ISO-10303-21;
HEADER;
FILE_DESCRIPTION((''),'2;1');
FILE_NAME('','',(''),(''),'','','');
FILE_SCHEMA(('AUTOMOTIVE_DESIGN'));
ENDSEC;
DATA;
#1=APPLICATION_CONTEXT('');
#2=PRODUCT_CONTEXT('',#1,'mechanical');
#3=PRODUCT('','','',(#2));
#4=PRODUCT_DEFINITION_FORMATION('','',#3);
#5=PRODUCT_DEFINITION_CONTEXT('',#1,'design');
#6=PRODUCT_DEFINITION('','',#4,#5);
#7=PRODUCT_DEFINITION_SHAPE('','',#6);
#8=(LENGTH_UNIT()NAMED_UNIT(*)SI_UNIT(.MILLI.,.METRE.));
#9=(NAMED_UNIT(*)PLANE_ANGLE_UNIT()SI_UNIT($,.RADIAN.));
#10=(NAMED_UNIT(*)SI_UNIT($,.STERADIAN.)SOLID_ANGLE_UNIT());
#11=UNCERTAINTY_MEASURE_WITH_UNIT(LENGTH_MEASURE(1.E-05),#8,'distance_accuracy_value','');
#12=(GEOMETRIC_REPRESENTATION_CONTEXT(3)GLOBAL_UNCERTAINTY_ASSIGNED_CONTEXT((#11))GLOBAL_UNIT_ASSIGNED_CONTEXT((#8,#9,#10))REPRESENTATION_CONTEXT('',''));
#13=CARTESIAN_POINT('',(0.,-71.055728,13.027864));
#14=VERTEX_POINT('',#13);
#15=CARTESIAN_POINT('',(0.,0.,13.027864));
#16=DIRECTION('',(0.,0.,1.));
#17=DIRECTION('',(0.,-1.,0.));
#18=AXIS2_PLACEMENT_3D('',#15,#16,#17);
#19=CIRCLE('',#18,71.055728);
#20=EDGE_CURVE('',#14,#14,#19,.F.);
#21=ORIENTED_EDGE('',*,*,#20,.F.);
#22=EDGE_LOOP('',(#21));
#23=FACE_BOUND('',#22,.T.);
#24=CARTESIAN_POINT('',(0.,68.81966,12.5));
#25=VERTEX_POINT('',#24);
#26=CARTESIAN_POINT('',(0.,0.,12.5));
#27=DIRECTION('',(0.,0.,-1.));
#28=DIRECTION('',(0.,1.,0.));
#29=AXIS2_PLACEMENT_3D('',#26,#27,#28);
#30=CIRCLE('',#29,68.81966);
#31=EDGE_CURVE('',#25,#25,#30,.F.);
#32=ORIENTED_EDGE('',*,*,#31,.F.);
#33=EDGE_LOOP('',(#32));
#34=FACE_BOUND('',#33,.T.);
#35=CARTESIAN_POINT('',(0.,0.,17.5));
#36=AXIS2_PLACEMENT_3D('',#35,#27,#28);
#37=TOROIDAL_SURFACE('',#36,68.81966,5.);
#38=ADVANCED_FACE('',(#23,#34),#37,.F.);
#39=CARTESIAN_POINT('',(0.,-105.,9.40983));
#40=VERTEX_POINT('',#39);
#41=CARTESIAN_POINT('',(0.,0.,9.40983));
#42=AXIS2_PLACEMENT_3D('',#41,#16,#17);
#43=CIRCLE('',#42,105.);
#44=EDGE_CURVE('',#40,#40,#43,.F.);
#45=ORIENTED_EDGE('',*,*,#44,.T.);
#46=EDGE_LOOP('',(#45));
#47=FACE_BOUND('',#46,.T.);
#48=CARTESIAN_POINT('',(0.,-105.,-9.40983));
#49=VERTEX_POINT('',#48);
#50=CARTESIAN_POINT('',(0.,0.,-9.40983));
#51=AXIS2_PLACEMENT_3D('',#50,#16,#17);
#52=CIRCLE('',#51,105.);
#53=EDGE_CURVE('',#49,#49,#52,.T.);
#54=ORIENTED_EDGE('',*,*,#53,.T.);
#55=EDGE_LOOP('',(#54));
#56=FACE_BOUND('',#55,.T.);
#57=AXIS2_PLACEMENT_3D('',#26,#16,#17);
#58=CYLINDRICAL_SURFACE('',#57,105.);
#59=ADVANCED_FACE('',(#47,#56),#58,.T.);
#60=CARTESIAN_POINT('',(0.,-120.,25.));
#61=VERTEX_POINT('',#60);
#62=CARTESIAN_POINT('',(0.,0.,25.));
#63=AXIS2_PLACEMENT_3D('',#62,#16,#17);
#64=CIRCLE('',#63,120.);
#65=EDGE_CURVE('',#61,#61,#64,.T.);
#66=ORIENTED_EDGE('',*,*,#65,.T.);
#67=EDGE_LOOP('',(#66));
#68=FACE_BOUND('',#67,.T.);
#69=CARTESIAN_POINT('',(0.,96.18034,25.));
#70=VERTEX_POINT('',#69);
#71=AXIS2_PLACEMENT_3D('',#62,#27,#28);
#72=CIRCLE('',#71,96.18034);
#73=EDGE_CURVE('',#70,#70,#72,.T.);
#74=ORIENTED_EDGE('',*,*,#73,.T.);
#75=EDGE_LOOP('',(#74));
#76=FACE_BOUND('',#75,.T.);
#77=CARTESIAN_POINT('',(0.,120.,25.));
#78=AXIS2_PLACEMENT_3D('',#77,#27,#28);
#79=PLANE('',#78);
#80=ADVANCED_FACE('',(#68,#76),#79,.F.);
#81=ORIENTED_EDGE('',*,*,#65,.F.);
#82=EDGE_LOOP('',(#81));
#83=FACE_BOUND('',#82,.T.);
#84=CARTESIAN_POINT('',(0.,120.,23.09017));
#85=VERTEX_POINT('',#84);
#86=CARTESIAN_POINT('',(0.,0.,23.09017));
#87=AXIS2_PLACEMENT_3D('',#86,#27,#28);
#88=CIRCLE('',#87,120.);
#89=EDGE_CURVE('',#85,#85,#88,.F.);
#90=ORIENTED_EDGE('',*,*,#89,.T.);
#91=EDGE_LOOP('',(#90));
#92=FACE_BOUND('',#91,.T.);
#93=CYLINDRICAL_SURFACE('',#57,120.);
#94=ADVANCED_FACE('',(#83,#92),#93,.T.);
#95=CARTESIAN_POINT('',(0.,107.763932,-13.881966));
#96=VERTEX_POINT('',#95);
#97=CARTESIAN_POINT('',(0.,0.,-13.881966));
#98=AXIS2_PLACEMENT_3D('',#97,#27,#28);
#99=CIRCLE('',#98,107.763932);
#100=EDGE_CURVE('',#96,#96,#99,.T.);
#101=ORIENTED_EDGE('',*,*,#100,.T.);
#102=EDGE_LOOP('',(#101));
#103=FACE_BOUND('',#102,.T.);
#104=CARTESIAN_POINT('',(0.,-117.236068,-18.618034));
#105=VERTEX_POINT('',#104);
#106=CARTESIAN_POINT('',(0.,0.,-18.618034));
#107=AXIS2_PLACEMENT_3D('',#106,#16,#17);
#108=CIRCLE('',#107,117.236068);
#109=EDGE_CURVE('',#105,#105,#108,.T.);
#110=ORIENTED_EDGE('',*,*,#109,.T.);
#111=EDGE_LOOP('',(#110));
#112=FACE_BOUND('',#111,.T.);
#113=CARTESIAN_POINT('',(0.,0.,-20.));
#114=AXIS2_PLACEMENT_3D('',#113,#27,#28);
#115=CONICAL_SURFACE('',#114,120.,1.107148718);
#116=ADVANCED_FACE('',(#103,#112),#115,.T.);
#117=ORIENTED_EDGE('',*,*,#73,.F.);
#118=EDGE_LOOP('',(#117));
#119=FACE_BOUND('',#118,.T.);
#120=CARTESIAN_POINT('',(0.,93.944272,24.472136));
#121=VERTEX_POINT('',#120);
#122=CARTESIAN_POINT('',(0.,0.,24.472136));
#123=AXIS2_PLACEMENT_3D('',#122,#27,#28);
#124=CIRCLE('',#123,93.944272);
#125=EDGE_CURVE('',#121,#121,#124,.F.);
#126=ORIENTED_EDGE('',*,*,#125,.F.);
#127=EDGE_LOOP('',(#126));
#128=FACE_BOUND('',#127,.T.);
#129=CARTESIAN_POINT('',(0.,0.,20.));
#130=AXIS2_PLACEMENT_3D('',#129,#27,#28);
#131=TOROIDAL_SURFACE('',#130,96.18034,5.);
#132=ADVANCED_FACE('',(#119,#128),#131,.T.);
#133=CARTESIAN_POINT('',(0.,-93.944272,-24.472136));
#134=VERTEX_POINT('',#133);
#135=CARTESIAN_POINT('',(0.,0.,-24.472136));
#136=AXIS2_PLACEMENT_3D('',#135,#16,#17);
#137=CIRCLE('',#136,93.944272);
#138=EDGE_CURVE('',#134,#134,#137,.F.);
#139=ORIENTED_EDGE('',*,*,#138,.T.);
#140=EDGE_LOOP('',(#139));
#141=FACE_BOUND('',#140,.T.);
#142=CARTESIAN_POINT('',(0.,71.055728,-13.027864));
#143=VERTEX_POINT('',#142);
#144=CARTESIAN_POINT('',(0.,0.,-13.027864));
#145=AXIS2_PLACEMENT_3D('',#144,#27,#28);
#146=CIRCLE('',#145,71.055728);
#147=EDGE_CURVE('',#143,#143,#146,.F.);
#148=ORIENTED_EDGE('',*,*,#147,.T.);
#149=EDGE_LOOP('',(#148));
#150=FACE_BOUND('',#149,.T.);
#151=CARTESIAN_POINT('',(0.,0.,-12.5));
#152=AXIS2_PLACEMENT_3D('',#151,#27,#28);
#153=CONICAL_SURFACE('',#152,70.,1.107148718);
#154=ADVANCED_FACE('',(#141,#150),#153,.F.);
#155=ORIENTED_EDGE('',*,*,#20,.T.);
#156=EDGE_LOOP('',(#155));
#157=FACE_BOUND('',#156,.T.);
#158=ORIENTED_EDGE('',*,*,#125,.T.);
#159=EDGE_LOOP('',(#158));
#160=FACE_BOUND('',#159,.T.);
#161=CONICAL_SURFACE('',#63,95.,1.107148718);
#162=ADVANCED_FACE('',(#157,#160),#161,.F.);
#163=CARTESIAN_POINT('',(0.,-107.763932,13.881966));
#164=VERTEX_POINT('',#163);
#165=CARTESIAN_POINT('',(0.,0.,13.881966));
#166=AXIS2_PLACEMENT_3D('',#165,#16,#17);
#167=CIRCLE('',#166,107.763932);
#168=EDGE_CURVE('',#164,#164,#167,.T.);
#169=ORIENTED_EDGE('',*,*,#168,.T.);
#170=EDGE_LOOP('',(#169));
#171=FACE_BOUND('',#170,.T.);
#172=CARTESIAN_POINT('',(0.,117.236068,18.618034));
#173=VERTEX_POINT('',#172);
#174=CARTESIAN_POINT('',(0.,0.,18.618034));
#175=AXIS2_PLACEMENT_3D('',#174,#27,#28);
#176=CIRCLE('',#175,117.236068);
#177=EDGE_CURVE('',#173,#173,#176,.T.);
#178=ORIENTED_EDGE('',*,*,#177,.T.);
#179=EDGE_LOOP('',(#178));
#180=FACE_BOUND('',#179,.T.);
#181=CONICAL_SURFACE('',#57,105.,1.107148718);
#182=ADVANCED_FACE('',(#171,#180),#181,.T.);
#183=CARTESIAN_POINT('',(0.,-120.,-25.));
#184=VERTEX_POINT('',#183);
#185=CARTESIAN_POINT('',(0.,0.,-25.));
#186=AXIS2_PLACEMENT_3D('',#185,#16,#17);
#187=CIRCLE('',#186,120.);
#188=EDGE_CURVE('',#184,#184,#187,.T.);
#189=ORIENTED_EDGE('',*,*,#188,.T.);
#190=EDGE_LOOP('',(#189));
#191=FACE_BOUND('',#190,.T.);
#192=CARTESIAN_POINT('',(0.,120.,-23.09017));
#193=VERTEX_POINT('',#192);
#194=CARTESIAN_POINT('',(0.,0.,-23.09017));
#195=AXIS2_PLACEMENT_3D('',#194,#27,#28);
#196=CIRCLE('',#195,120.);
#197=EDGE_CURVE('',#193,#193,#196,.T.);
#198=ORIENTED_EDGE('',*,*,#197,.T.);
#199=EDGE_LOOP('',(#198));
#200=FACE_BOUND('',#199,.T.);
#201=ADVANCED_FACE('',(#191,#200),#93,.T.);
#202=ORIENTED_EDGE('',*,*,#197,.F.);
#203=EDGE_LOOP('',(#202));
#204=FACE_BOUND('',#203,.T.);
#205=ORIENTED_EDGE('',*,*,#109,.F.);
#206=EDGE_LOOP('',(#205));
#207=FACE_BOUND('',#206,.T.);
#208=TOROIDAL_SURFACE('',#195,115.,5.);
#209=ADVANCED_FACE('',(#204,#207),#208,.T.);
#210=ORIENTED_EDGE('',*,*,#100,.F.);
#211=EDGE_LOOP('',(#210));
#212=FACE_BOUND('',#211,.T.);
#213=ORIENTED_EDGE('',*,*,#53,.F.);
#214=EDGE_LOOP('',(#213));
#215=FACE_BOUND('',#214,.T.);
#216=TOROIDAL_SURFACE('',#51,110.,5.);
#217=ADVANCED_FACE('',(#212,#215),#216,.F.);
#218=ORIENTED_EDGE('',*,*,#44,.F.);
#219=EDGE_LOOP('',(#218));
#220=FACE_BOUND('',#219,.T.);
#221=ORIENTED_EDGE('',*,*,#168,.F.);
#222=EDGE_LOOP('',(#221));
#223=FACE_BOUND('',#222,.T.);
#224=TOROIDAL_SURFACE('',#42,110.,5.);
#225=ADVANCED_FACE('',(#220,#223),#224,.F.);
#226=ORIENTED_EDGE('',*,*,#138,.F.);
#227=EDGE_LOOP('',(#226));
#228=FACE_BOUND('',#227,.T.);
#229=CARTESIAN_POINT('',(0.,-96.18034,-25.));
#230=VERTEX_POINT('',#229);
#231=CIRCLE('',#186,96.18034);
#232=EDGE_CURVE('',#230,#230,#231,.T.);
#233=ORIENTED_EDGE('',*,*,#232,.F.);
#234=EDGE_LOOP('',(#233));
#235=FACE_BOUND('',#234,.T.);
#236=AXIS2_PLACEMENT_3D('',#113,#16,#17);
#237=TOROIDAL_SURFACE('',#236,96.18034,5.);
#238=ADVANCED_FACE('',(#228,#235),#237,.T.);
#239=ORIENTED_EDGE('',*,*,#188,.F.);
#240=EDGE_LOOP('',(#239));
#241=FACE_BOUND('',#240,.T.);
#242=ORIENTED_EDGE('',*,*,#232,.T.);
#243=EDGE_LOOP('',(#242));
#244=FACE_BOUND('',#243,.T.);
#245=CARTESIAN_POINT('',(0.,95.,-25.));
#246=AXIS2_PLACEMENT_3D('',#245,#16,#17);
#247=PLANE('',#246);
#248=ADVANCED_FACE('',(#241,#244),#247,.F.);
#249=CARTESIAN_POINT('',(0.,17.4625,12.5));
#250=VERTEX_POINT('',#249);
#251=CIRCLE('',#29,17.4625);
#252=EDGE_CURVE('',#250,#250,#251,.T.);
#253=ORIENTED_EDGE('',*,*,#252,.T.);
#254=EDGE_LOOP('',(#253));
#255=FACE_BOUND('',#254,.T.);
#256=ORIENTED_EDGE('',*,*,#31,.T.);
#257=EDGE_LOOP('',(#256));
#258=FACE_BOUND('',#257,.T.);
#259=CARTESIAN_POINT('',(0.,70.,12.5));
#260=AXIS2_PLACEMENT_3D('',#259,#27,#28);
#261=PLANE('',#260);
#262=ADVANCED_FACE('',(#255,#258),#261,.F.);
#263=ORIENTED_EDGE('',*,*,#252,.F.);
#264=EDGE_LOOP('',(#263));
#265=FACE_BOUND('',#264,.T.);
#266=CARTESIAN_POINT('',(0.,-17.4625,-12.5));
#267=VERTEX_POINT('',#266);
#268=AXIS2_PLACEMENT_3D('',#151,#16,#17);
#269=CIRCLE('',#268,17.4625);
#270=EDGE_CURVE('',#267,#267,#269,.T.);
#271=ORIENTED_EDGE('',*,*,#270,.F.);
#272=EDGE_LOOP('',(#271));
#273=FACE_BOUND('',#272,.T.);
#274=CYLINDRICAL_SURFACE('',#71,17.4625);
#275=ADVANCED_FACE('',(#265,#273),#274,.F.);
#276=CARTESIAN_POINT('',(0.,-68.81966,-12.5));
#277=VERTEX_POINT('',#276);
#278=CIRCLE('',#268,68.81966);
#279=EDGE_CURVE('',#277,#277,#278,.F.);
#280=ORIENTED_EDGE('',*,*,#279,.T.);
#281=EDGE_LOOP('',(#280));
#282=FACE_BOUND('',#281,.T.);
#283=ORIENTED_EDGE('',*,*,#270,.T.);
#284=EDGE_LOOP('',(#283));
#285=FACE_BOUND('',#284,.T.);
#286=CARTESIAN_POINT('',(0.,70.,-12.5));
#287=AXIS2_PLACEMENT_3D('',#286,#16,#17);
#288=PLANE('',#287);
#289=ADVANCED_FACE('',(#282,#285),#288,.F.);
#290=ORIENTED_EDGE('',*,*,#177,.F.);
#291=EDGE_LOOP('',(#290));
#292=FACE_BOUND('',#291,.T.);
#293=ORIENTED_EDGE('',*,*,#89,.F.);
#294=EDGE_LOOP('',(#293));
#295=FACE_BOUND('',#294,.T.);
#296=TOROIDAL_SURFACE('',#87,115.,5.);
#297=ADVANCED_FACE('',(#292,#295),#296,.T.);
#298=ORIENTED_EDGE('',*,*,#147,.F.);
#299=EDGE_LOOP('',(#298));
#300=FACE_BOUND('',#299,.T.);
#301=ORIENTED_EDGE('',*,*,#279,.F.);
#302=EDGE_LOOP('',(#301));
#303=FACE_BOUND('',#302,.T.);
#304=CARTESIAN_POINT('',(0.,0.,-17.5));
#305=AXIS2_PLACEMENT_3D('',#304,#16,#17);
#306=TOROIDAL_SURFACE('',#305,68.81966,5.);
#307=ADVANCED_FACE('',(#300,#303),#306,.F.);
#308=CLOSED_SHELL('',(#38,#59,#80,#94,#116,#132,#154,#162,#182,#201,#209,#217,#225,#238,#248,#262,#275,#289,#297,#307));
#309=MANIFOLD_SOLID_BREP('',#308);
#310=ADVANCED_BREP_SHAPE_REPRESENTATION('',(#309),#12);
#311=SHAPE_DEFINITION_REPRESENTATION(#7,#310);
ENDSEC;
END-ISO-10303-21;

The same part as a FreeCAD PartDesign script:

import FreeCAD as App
import Part
import Sketcher
Q = App.Units.Quantity


def edges_at(feature, points):
    """Names of the edges that pass closest to the given points."""
    edges = feature.Shape.Edges
    near = lambda p: min(range(len(edges)), key=lambda i: edges[i].distToShape(Part.Vertex(*p))[0])
    return sorted({f"Edge{near(p) + 1}" for p in points})


def add_polygon(sketch, points):
    """Adds a closed chain of lines whose ends are joined by coincident constraints."""
    first, n = sketch.GeometryCount, len(points)
    for a, b in zip(points, points[1:] + points[:1]):
        sketch.addGeometry(Part.LineSegment(App.Vector(*a, 0), App.Vector(*b, 0)), False)
    for i in range(n):
        sketch.addConstraint(Sketcher.Constraint("Coincident", first + i, 2, first + (i + 1) % n, 1))

doc = App.newDocument("Part")
body = doc.addObject("PartDesign::Body", "Body")

sketch1 = body.newObject("Sketcher::SketchObject", "Sketch")
sketch1.AttachmentSupport = (doc.getObject("YZ_Plane"), [""])
sketch1.MapMode = "FlatFace"
add_polygon(sketch1, [(120, 25), (95, 25), (70, 12.5), (0, 12.5), (0, -12.5), (70, -12.5), (95, -25), (120, -25), (120, -20), (105, -12.5), (105, 12.5), (120, 20)])
sketch1.addConstraint([
    Sketcher.Constraint("Horizontal", 0),
    Sketcher.Constraint("Horizontal", 2),
    Sketcher.Constraint("Vertical", 3),
    Sketcher.Constraint("Horizontal", 4),
    Sketcher.Constraint("Horizontal", 6),
    Sketcher.Constraint("Vertical", 7),
    Sketcher.Constraint("Vertical", 9),
    Sketcher.Constraint("Vertical", 11),
    Sketcher.Constraint("Symmetric", 2, 2, 3, 2, -1, 1),
    Sketcher.Constraint("Symmetric", 0, 2, 5, 2, -1),
    Sketcher.Constraint("Symmetric", 7, 2, 10, 2, -1),
    Sketcher.Constraint("Parallel", 5, 8),
    Sketcher.Constraint("Parallel", 1, 10),
    Sketcher.Constraint("Horizontal", 4, 2, 8, 2),
    Sketcher.Constraint("Horizontal", 2, 2, 9, 2),
    Sketcher.Constraint("Equal", 6, 3),
    Sketcher.Constraint("DistanceX", 0, 2, 0, 1, Q("25 mm")),
    Sketcher.Constraint("DistanceX", 2, 2, 2, 1, Q("70 mm")),
    Sketcher.Constraint("DistanceY", 7, 1, 7, 2, Q("5 mm")),
    Sketcher.Constraint("DistanceX", -1, 1, 0, 2, Q("95 mm")),
    Sketcher.Constraint("DistanceY", -1, 1, 0, 2, Q("25 mm")),
])
revolution = body.newObject("PartDesign::Revolution", "Revolution")
revolution.Profile = sketch1
revolution.ReferenceAxis = (sketch1, ["V_Axis"])
revolution.Angle = 360
doc.recompute()

fillet = body.newObject("PartDesign::Fillet", "Fillet")
fillet.Base = (revolution, edges_at(revolution, [
    (0, 105, -12.5),
    (0, 120, -20),
    (0, 95, -25),
    (0, 70, -12.5),
    (0, 70, 12.5),
    (0, 95, 25),
    (0, 120, 20),
    (0, 105, 12.5),
]))
fillet.Radius = 5

sketch2 = body.newObject("Sketcher::SketchObject", "Sketch001")
sketch2.AttachmentSupport = (doc.getObject("XY_Plane"), [""])
sketch2.MapMode = "FlatFace"
sketch2.AttachmentOffset = App.Placement(App.Vector(0, 0, -12.5), App.Rotation())
sketch2.addGeometry(Part.Circle(App.Vector(0, 0, 0), App.Vector(0, 0, 1), 17.4625), False)
sketch2.addConstraint([
    Sketcher.Constraint("Coincident", 0, 3, -1, 1),
    Sketcher.Constraint("Diameter", 0, Q("34.925 mm")),
])
pocket1 = body.newObject("PartDesign::Pocket", "Pocket")
pocket1.Profile = sketch2
pocket1.Type = "ThroughAll"
pocket1.Midplane = True

doc.recompute()
